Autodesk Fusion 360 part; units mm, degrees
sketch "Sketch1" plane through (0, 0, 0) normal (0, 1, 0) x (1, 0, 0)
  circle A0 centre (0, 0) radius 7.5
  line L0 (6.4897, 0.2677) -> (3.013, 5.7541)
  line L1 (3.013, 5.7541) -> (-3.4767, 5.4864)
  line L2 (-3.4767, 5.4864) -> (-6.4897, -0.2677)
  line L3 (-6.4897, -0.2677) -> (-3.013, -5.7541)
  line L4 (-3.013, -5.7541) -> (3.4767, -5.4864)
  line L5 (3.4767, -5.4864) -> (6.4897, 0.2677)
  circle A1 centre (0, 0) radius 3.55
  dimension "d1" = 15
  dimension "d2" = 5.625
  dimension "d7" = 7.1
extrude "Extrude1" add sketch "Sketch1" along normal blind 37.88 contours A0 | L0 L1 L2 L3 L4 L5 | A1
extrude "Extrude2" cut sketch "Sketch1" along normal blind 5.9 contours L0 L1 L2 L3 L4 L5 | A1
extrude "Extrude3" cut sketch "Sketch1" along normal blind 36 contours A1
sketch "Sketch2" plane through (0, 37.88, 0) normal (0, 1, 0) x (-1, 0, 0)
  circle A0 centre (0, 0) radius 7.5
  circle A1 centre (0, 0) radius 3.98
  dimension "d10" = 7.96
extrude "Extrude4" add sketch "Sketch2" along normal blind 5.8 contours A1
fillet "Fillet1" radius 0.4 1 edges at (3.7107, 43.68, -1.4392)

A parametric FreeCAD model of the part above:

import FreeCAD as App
import Part
import Sketcher
Q = App.Units.Quantity


def edges_at(feature, points):
    """Names of the edges that pass closest to the given points."""
    edges = feature.Shape.Edges
    near = lambda p: min(range(len(edges)), key=lambda i: edges[i].distToShape(Part.Vertex(*p))[0])
    return sorted({f"Edge{near(p) + 1}" for p in points})

doc = App.newDocument("Part")
body = doc.addObject("PartDesign::Body", "Body")

# Sketch on XZ plane
sketch1 = body.newObject("Sketcher::SketchObject", "Sketch")
sketch1.AttachmentSupport = (doc.getObject("XZ_Plane"), [""])
sketch1.MapMode = "FlatFace"
sketch1.addGeometry(Part.Circle(App.Vector(0, 0, 0), App.Vector(0, 0, 1), 7.5), False)
sketch1.addConstraint([
    Sketcher.Constraint("Coincident", 0, 3, -1, 1),
    Sketcher.Constraint("Diameter", 0, Q("15 mm")),
])
pad1 = body.newObject("PartDesign::Pad", "Pad")
pad1.Profile = sketch1
pad1.Length = 37.88
pad1.Reversed = True

# Sketch on XZ plane
sketch2 = body.newObject("Sketcher::SketchObject", "Sketch001")
sketch2.AttachmentSupport = (doc.getObject("XZ_Plane"), [""])
sketch2.MapMode = "FlatFace"
sketch2.addGeometry([
    Part.LineSegment(App.Vector(3.4767, 5.4864, 0), App.Vector(6.4897, -0.2677, 0)),  # 0
    Part.LineSegment(App.Vector(6.4897, -0.2677, 0), App.Vector(3.013, -5.7541, 0)),  # 1
    Part.LineSegment(App.Vector(3.013, -5.7541, 0), App.Vector(-3.4767, -5.4864, 0)),  # 2
    Part.LineSegment(App.Vector(-3.4767, -5.4864, 0), App.Vector(-6.4897, 0.2677, 0)),  # 3
    Part.LineSegment(App.Vector(-6.4897, 0.2677, 0), App.Vector(-3.013, 5.7541, 0)),  # 4
    Part.LineSegment(App.Vector(-3.013, 5.7541, 0), App.Vector(3.4767, 5.4864, 0)),  # 5
], False)
sketch2.addConstraint([
    Sketcher.Constraint("Coincident", 0, 2, 1, 1),
    Sketcher.Constraint("Coincident", 1, 2, 2, 1),
    Sketcher.Constraint("Coincident", 2, 2, 3, 1),
    Sketcher.Constraint("Coincident", 3, 2, 4, 1),
    Sketcher.Constraint("Coincident", 4, 2, 5, 1),
    Sketcher.Constraint("Coincident", 5, 2, 0, 1),
    Sketcher.Constraint("Symmetric", 0, 2, 3, 2, -1, 1),
    Sketcher.Constraint("Symmetric", 1, 2, 4, 2, -1, 1),
    Sketcher.Constraint("Symmetric", 2, 2, 5, 2, -1, 1),
    Sketcher.Constraint("Equal", 0, 1),
    Sketcher.Constraint("Equal", 1, 2),
    Sketcher.Constraint("DistanceX", -1, 1, 1, 2, Q("3.013 mm")),
    Sketcher.Constraint("DistanceY", 1, 2, -1, 1, Q("5.754 mm")),
    Sketcher.Constraint("DistanceX", 3, 2, 2, 2, Q("3.013 mm")),
    Sketcher.Constraint("DistanceY", 2, 2, 3, 2, Q("5.754 mm")),
])
pocket1 = body.newObject("PartDesign::Pocket", "Pocket")
pocket1.Profile = sketch2
pocket1.Length = 5.9

# Sketch on XZ plane
sketch3 = body.newObject("Sketcher::SketchObject", "Sketch002")
sketch3.AttachmentSupport = (doc.getObject("XZ_Plane"), [""])
sketch3.MapMode = "FlatFace"
sketch3.addGeometry(Part.Circle(App.Vector(0, 0, 0), App.Vector(0, 0, 1), 3.55), False)
sketch3.addConstraint([
    Sketcher.Constraint("Coincident", 0, 3, -1, 1),
    Sketcher.Constraint("Diameter", 0, Q("7.1 mm")),
])
pocket2 = body.newObject("PartDesign::Pocket", "Pocket001")
pocket2.Profile = sketch3
pocket2.Length = 36

# Sketch on XZ plane
sketch4 = body.newObject("Sketcher::SketchObject", "Sketch003")
sketch4.AttachmentSupport = (doc.getObject("XZ_Plane"), [""])
sketch4.MapMode = "FlatFace"
sketch4.AttachmentOffset = App.Placement(App.Vector(0, 0, -37.88), App.Rotation())
sketch4.addGeometry(Part.Circle(App.Vector(0, 0, 0), App.Vector(0, 0, 1), 3.98), False)
sketch4.addConstraint([
    Sketcher.Constraint("Coincident", 0, 3, -1, 1),
    Sketcher.Constraint("Diameter", 0, Q("7.96 mm")),
])
pad2 = body.newObject("PartDesign::Pad", "Pad001")
pad2.Profile = sketch4
pad2.Length = 5.8
pad2.Reversed = True
doc.recompute()

fillet = body.newObject("PartDesign::Fillet", "Fillet")
fillet.Base = (pad2, edges_at(pad2, [(3.711, 43.68, -1.439)]))
fillet.Radius = 0.4

doc.recompute()
